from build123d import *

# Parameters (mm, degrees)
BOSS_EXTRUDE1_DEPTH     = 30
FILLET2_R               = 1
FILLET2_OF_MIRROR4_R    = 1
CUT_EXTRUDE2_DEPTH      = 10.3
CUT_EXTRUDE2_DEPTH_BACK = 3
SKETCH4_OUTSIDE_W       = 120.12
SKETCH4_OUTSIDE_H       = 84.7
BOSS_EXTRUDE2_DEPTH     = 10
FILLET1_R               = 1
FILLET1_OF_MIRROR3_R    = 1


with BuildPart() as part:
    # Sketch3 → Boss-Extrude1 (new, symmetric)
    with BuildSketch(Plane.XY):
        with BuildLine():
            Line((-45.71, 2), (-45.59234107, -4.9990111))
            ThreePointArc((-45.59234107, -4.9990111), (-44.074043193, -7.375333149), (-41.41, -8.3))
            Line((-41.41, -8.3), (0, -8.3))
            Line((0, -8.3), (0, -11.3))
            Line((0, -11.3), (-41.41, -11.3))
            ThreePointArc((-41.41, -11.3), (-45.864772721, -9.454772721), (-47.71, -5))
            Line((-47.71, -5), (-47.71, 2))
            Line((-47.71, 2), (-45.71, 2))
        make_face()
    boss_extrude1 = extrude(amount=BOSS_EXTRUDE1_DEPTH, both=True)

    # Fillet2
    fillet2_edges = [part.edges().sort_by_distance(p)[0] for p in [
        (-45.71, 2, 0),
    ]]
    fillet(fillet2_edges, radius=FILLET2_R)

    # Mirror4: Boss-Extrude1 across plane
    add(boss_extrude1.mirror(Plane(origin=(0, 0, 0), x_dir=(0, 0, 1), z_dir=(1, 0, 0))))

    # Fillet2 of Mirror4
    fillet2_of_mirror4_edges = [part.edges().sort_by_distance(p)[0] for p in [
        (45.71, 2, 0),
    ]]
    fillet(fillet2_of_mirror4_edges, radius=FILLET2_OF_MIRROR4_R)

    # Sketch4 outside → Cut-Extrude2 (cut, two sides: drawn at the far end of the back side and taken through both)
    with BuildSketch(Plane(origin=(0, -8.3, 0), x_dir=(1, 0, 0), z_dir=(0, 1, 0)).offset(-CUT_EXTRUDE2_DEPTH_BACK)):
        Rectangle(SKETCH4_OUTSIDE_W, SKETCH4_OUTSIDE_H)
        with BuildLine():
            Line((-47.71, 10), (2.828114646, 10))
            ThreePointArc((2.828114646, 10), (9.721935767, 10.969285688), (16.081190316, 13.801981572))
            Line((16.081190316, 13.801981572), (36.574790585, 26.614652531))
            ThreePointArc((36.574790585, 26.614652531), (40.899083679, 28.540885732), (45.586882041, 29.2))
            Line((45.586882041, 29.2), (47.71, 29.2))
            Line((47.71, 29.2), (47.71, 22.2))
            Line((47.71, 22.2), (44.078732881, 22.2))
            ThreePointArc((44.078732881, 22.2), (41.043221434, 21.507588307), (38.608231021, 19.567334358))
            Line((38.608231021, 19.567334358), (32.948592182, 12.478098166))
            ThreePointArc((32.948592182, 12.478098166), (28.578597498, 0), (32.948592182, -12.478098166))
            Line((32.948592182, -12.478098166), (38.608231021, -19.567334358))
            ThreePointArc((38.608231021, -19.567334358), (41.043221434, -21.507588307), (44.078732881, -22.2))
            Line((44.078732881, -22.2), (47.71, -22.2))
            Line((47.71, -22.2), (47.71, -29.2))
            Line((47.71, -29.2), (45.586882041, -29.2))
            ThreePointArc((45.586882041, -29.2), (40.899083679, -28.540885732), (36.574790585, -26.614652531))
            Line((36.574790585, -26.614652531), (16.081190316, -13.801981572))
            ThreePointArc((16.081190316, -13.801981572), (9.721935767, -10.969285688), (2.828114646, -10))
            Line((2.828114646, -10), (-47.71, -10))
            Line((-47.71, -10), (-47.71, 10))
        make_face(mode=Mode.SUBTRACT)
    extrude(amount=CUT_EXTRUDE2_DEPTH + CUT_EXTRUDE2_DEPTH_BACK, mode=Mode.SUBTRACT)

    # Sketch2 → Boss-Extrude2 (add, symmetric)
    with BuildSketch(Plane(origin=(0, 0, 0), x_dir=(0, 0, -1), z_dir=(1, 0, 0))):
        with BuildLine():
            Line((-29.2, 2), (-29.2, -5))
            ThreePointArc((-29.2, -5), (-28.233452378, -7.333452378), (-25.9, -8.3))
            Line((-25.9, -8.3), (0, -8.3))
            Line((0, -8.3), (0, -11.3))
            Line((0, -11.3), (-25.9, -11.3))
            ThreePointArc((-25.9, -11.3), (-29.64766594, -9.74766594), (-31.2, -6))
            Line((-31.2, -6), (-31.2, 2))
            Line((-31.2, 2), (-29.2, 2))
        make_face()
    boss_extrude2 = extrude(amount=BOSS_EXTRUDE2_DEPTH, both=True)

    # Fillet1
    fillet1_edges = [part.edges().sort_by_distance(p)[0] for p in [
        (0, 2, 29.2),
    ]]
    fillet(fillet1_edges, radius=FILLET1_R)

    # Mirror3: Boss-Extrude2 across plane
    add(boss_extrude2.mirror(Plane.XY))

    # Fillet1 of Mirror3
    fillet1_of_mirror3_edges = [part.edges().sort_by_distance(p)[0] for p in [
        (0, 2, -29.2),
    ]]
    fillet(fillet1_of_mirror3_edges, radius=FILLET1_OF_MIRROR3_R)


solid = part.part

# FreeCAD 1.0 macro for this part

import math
import FreeCAD as App
import Part
import Sketcher

V = App.Vector


def edges_at(feature, points):
    """Names of the edges that pass closest to the given points."""
    edges = feature.Shape.Edges
    near = lambda p: min(range(len(edges)), key=lambda i: edges[i].distToShape(Part.Vertex(*p))[0])
    return sorted({f"Edge{near(p) + 1}" for p in points})


def add_polygon(sketch, points):
    """Adds a closed chain of lines whose ends are joined by coincident constraints."""
    first, n = sketch.GeometryCount, len(points)
    for a, b in zip(points, points[1:] + points[:1]):
        sketch.addGeometry(Part.LineSegment(App.Vector(*a, 0), App.Vector(*b, 0)), False)
    for i in range(n):
        sketch.addConstraint(Sketcher.Constraint("Coincident", first + i, 2, first + (i + 1) % n, 1))

doc = App.newDocument("Part")
params = doc.addObject("Spreadsheet::Sheet", "Params")
for row, (alias, value) in enumerate([
    ("sketch1_radius", "6.3 mm"),
    ("sketch1_radius2", "4.3 mm"),
    ("sketch1_width", "2 mm"),
    ("sketch1_height", "7 mm"),
    ("sketch1_height2", "3 mm"),
    ("pad1_length", "60 mm"),
    ("fillet_radius", "1 mm"),
    ("fillet2_radius", "1 mm"),
    ("sketch2_radius", "25 mm"),
    ("sketch2_radius2", "17 mm"),
    ("sketch2_radius3", "7 mm"),
    ("sketch2_radius4", "20 mm"),
    ("sketch2_height", "20 mm"),
    ("sketch3_radius", "5.3 mm"),
    ("sketch3_radius2", "3.3 mm"),
    ("sketch3_width", "7 mm"),
    ("sketch3_width2", "8 mm"),
    ("sketch3_height", "25.9 mm"),
    ("pad2_length", "20 mm"),
    ("fillet3_radius", "1 mm"),
    ("fillet4_radius", "1 mm"),
], start=1):
    params.set(f"A{row}", alias)
    params.set(f"B{row}", "=" + value)
    params.setAlias(f"B{row}", alias)

body = doc.addObject("PartDesign::Body", "Body")

sketch1 = body.newObject("Sketcher::SketchObject", "Sketch")
sketch1.AttachmentSupport = (doc.getObject("XY_Plane"), [""])
sketch1.MapMode = "FlatFace"
sketch1.addGeometry([
    Part.LineSegment(V(-45.6, -5, 0), V(-45.7, 2, 0)),
    Part.LineSegment(V(-45.7, 2, 0), V(-47.7, 2, 0)),
    Part.LineSegment(V(-47.7, 2, 0), V(-47.7, -5, 0)),
    Part.ArcOfCircle(Part.Circle(V(-41.4, -5, 0), V(0, 0, 1), 6.3), math.radians(-180), math.radians(-90)),
    Part.LineSegment(V(-41.4, -11.3, 0), V(0, -11.3, 0)),
    Part.LineSegment(V(0, -11.3, 0), V(0, -8.3, 0)),
    Part.LineSegment(V(0, -8.3, 0), V(-41.4, -8.3, 0)),
    Part.ArcOfCircle(Part.Circle(V(-41.4, -4, 0), V(0, 0, 1), 4.3), math.radians(-167), math.radians(-90)),
], False)
sketch1.addConstraint([
    Sketcher.Constraint("Coincident", 0, 2, 1, 1),
    Sketcher.Constraint("Coincident", 1, 2, 2, 1),
    Sketcher.Constraint("Tangent", 2, 2, 3, 1),
    Sketcher.Constraint("Tangent", 3, 2, 4, 1),
    Sketcher.Constraint("Coincident", 4, 2, 5, 1),
    Sketcher.Constraint("Coincident", 5, 2, 6, 1),
    Sketcher.Constraint("Tangent", 6, 2, 7, 2),
    Sketcher.Constraint("Coincident", 7, 1, 0, 1),
    Sketcher.Constraint("Horizontal", 1),
    Sketcher.Constraint("Vertical", 2),
    Sketcher.Constraint("Horizontal", 4),
    Sketcher.Constraint("Vertical", 5),
    Sketcher.Constraint("Horizontal", 6),
    Sketcher.Constraint("PointOnObject", 4, 2, -2),
    Sketcher.Constraint("Vertical", 3, 3, 7, 3),
    Sketcher.Constraint("Radius", 3, 6.3),
    Sketcher.Constraint("Radius", 7, 4.3),
    Sketcher.Constraint("DistanceX", 1, 2, 1, 1, 2.0),
    Sketcher.Constraint("DistanceY", 2, 2, 2, 1, 7.0),
    Sketcher.Constraint("DistanceY", 5, 1, 5, 2, 3.0),
    Sketcher.Constraint("Distance", 0, 7.0),
    Sketcher.Constraint("DistanceY", 3, 3, -1, 1, 5.0),
    Sketcher.Constraint("DistanceX", 4, 1, 4, 2, 41.41),
])
sketch1.setExpression("Constraints[15]", "Params.sketch1_radius")
sketch1.setExpression("Constraints[16]", "Params.sketch1_radius2")
sketch1.setExpression("Constraints[17]", "Params.sketch1_width")
sketch1.setExpression("Constraints[18]", "Params.sketch1_height")
sketch1.setExpression("Constraints[19]", "Params.sketch1_height2")
pad1 = body.newObject("PartDesign::Pad", "Pad")
pad1.Profile = sketch1
pad1.setExpression("Length", "Params.pad1_length")
pad1.Midplane = True
doc.recompute()

fillet = body.newObject("PartDesign::Fillet", "Fillet")
fillet.Base = (pad1, edges_at(pad1, [(-45.71, 2, 0)]))
fillet.setExpression("Radius", "Params.fillet_radius")
doc.recompute()

mirrored = body.newObject("PartDesign::Mirrored", "Mirrored")
mirrored.Originals = [pad1]
mirrored.MirrorPlane = (doc.getObject("YZ_Plane"), [""])
body.Tip = mirrored
doc.recompute()

fillet2 = body.newObject("PartDesign::Fillet", "Fillet001")
fillet2.Base = (mirrored, edges_at(mirrored, [(45.71, 2, 0)]))
fillet2.setExpression("Radius", "Params.fillet2_radius")

sketch2 = body.newObject("Sketcher::SketchObject", "Sketch001")
sketch2.AttachmentSupport = (doc.getObject("XZ_Plane"), [""])
sketch2.MapMode = "FlatFace"
sketch2.AttachmentOffset = App.Placement(V(0, 0, 8.3), App.Rotation())
add_polygon(sketch2, [(-60.1, -42.4), (-60.1, 42.4), (60.1, 42.4), (60.1, -42.4)])
sketch2.addGeometry(Part.LineSegment(V(-47.7, 10, 0), V(-47.7, -10, 0)), False)
sketch2.addGeometry(Part.LineSegment(V(-47.7, -10, 0), V(2.8, -10, 0)), False)
sketch2.addGeometry(Part.ArcOfCircle(Part.Circle(V(2.8, -35, 0), V(0, 0, 1), 25), math.radians(58), math.radians(90)), False)
sketch2.addGeometry(Part.LineSegment(V(16.1, -13.8, 0), V(36.6, -26.6, 0)), False)
sketch2.addGeometry(Part.ArcOfCircle(Part.Circle(V(45.6, -12.2, 0), V(0, 0, 1), 17), math.radians(-122), math.radians(-90)), False)
sketch2.addGeometry(Part.LineSegment(V(45.6, -29.2, 0), V(47.7, -29.2, 0)), False)
sketch2.addGeometry(Part.LineSegment(V(47.7, -29.2, 0), V(47.7, -22.2, 0)), False)
sketch2.addGeometry(Part.LineSegment(V(47.7, -22.2, 0), V(44.1, -22.2, 0)), False)
sketch2.addGeometry(Part.ArcOfCircle(Part.Circle(V(44.1, -15.2, 0), V(0, 0, 1), 7), math.radians(-141), math.radians(-90)), False)
sketch2.addGeometry(Part.LineSegment(V(38.6, -19.6, 0), V(32.9, -12.5, 0)), False)
sketch2.addGeometry(Part.ArcOfCircle(Part.Circle(V(48.6, 0, 0), V(0, 0, 1), 20), math.radians(141), math.radians(219)), False)
sketch2.addGeometry(Part.LineSegment(V(32.9, 12.5, 0), V(38.6, 19.6, 0)), False)
sketch2.addGeometry(Part.ArcOfCircle(Part.Circle(V(44.1, 15.2, 0), V(0, 0, 1), 7), math.radians(90), math.radians(141)), False)
sketch2.addGeometry(Part.LineSegment(V(44.1, 22.2, 0), V(47.7, 22.2, 0)), False)
sketch2.addGeometry(Part.LineSegment(V(47.7, 22.2, 0), V(47.7, 29.2, 0)), False)
sketch2.addGeometry(Part.LineSegment(V(47.7, 29.2, 0), V(45.6, 29.2, 0)), False)
sketch2.addGeometry(Part.ArcOfCircle(Part.Circle(V(45.6, 12.2, 0), V(0, 0, 1), 17), math.radians(90), math.radians(122)), False)
sketch2.addGeometry(Part.LineSegment(V(36.6, 26.6, 0), V(16.1, 13.8, 0)), False)
sketch2.addGeometry(Part.ArcOfCircle(Part.Circle(V(2.8, 35, 0), V(0, 0, 1), 25), math.radians(-90), math.radians(-58)), False)
sketch2.addGeometry(Part.LineSegment(V(2.8, 10, 0), V(-47.7, 10, 0)), False)
sketch2.addConstraint([
    Sketcher.Constraint("Coincident", 4, 2, 5, 1),
    Sketcher.Constraint("Tangent", 5, 2, 6, 2),
    Sketcher.Constraint("Tangent", 6, 1, 7, 1),
    Sketcher.Constraint("Tangent", 7, 2, 8, 1),
    Sketcher.Constraint("Tangent", 8, 2, 9, 1),
    Sketcher.Constraint("Coincident", 9, 2, 10, 1),
    Sketcher.Constraint("Coincident", 10, 2, 11, 1),
    Sketcher.Constraint("Tangent", 11, 2, 12, 2),
    Sketcher.Constraint("Tangent", 12, 1, 13, 1),
    Sketcher.Constraint("Tangent", 13, 2, 14, 2),
    Sketcher.Constraint("Tangent", 14, 1, 15, 1),
    Sketcher.Constraint("Tangent", 15, 2, 16, 2),
    Sketcher.Constraint("Tangent", 16, 1, 17, 1),
    Sketcher.Constraint("Coincident", 17, 2, 18, 1),
    Sketcher.Constraint("Coincident", 18, 2, 19, 1),
    Sketcher.Constraint("Tangent", 19, 2, 20, 1),
    Sketcher.Constraint("Tangent", 20, 2, 21, 1),
    Sketcher.Constraint("Tangent", 21, 2, 22, 2),
    Sketcher.Constraint("Tangent", 22, 1, 23, 1),
    Sketcher.Constraint("Coincident", 23, 2, 4, 1),
    Sketcher.Constraint("Vertical", 0),
    Sketcher.Constraint("Horizontal", 1),
    Sketcher.Constraint("Vertical", 2),
    Sketcher.Constraint("Horizontal", 3),
    Sketcher.Constraint("Vertical", 4),
    Sketcher.Constraint("Horizontal", 5),
    Sketcher.Constraint("Horizontal", 9),
    Sketcher.Constraint("Vertical", 10),
    Sketcher.Constraint("Horizontal", 11),
    Sketcher.Constraint("Horizontal", 17),
    Sketcher.Constraint("Vertical", 18),
    Sketcher.Constraint("Horizontal", 19),
    Sketcher.Constraint("Horizontal", 23),
    Sketcher.Constraint("Equal", 12, 16),
    Sketcher.Constraint("Equal", 8, 20),
    Sketcher.Constraint("Equal", 6, 22),
    Sketcher.Constraint("Symmetric", 0, 2, 2, 2, -1, 1),
    Sketcher.Constraint("Symmetric", 12, 3, 16, 3, -1),
    Sketcher.Constraint("Symmetric", 8, 3, 20, 3, -1),
    Sketcher.Constraint("Symmetric", 6, 3, 22, 3, -1),
    Sketcher.Constraint("PointOnObject", 14, 3, -1),
    Sketcher.Constraint("Vertical", 10, 2, 17, 2),
    Sketcher.Constraint("Radius", 6, 25.0),
    Sketcher.Constraint("Radius", 8, 17.0),
    Sketcher.Constraint("Radius", 12, 7.0),
    Sketcher.Constraint("Radius", 14, 20.0),
    Sketcher.Constraint("DistanceY", 4, 2, 4, 1, 20.0),
    Sketcher.Constraint("DistanceY", 10, 1, 10, 2, 7.0),
    Sketcher.Constraint("DistanceY", 0, 1, 0, 2, 84.7),
    Sketcher.Constraint("DistanceX", 1, 1, 1, 2, 120.12),
    Sketcher.Constraint("DistanceY", 8, 3, -1, 1, 12.2),
    Sketcher.Constraint("DistanceX", 4, 2, -1, 1, 47.71),
    Sketcher.Constraint("DistanceX", -1, 1, 9, 2, 47.71),
    Sketcher.Constraint("DistanceY", 13, 2, -1, 1, 12.478098),
    Sketcher.Constraint("DistanceX", 6, 1, 7, 2, 20.4936),
    Sketcher.Constraint("DistanceX", 13, 2, 7, 2, 3.626198),
    Sketcher.Constraint("DistanceX", 5, 1, 5, 2, 50.538115),
])
sketch2.setExpression("Constraints[46]", "Params.sketch2_radius")
sketch2.setExpression("Constraints[47]", "Params.sketch2_radius2")
sketch2.setExpression("Constraints[48]", "Params.sketch2_radius3")
sketch2.setExpression("Constraints[49]", "Params.sketch2_radius4")
sketch2.setExpression("Constraints[50]", "Params.sketch2_height")
pocket1 = body.newObject("PartDesign::Pocket", "Pocket")
pocket1.Profile = sketch2
pocket1.Type = "ThroughAll"
pocket1.Midplane = True

sketch3 = body.newObject("Sketcher::SketchObject", "Sketch002")
sketch3.AttachmentSupport = (doc.getObject("YZ_Plane"), [""])
sketch3.MapMode = "FlatFace"
sketch3.addGeometry([
    Part.LineSegment(V(-5, 29.2, 0), V(2, 29.2, 0)),
    Part.LineSegment(V(2, 29.2, 0), V(2, 31.2, 0)),
    Part.LineSegment(V(2, 31.2, 0), V(-6, 31.2, 0)),
    Part.ArcOfCircle(Part.Circle(V(-6, 25.9, 0), V(0, 0, 1), 5.3), math.radians(90), math.radians(180)),
    Part.LineSegment(V(-11.3, 25.9, 0), V(-11.3, 0, 0)),
    Part.LineSegment(V(-11.3, 0, 0), V(-8.3, 0, 0)),
    Part.LineSegment(V(-8.3, 0, 0), V(-8.3, 25.9, 0)),
    Part.ArcOfCircle(Part.Circle(V(-5, 25.9, 0), V(0, 0, 1), 3.3), math.radians(90), math.radians(180)),
], False)
sketch3.addConstraint([
    Sketcher.Constraint("Coincident", 0, 2, 1, 1),
    Sketcher.Constraint("Coincident", 1, 2, 2, 1),
    Sketcher.Constraint("Tangent", 2, 2, 3, 1),
    Sketcher.Constraint("Tangent", 3, 2, 4, 1),
    Sketcher.Constraint("Coincident", 4, 2, 5, 1),
    Sketcher.Constraint("Coincident", 5, 2, 6, 1),
    Sketcher.Constraint("Tangent", 6, 2, 7, 2),
    Sketcher.Constraint("Tangent", 7, 1, 0, 1),
    Sketcher.Constraint("Horizontal", 0),
    Sketcher.Constraint("Vertical", 1),
    Sketcher.Constraint("Horizontal", 2),
    Sketcher.Constraint("Vertical", 4),
    Sketcher.Constraint("Horizontal", 5),
    Sketcher.Constraint("Vertical", 6),
    Sketcher.Constraint("PointOnObject", 4, 2, -1),
    Sketcher.Constraint("Horizontal", 3, 3, 7, 3),
    Sketcher.Constraint("Radius", 3, 5.3),
    Sketcher.Constraint("Radius", 7, 3.3),
    Sketcher.Constraint("DistanceX", 0, 1, 0, 2, 7.0),
    Sketcher.Constraint("DistanceX", 2, 2, 2, 1, 8.0),
    Sketcher.Constraint("DistanceY", 4, 2, 4, 1, 25.9),
    Sketcher.Constraint("DistanceX", 3, 3, -1, 1, 6.0),
])
sketch3.setExpression("Constraints[16]", "Params.sketch3_radius")
sketch3.setExpression("Constraints[17]", "Params.sketch3_radius2")
sketch3.setExpression("Constraints[18]", "Params.sketch3_width")
sketch3.setExpression("Constraints[19]", "Params.sketch3_width2")
sketch3.setExpression("Constraints[20]", "Params.sketch3_height")
pad2 = body.newObject("PartDesign::Pad", "Pad001")
pad2.Profile = sketch3
pad2.setExpression("Length", "Params.pad2_length")
pad2.Midplane = True
doc.recompute()

fillet3 = body.newObject("PartDesign::Fillet", "Fillet002")
fillet3.Base = (pad2, edges_at(pad2, [(0, 2, 29.2)]))
fillet3.setExpression("Radius", "Params.fillet3_radius")
doc.recompute()

mirrored2 = body.newObject("PartDesign::Mirrored", "Mirrored001")
mirrored2.Originals = [pad2]
mirrored2.MirrorPlane = (doc.getObject("XY_Plane"), [""])
body.Tip = mirrored2
doc.recompute()

fillet4 = body.newObject("PartDesign::Fillet", "Fillet003")
fillet4.Base = (mirrored2, edges_at(mirrored2, [(0, 2, -29.2)]))
fillet4.setExpression("Radius", "Params.fillet4_radius")

doc.recompute()
